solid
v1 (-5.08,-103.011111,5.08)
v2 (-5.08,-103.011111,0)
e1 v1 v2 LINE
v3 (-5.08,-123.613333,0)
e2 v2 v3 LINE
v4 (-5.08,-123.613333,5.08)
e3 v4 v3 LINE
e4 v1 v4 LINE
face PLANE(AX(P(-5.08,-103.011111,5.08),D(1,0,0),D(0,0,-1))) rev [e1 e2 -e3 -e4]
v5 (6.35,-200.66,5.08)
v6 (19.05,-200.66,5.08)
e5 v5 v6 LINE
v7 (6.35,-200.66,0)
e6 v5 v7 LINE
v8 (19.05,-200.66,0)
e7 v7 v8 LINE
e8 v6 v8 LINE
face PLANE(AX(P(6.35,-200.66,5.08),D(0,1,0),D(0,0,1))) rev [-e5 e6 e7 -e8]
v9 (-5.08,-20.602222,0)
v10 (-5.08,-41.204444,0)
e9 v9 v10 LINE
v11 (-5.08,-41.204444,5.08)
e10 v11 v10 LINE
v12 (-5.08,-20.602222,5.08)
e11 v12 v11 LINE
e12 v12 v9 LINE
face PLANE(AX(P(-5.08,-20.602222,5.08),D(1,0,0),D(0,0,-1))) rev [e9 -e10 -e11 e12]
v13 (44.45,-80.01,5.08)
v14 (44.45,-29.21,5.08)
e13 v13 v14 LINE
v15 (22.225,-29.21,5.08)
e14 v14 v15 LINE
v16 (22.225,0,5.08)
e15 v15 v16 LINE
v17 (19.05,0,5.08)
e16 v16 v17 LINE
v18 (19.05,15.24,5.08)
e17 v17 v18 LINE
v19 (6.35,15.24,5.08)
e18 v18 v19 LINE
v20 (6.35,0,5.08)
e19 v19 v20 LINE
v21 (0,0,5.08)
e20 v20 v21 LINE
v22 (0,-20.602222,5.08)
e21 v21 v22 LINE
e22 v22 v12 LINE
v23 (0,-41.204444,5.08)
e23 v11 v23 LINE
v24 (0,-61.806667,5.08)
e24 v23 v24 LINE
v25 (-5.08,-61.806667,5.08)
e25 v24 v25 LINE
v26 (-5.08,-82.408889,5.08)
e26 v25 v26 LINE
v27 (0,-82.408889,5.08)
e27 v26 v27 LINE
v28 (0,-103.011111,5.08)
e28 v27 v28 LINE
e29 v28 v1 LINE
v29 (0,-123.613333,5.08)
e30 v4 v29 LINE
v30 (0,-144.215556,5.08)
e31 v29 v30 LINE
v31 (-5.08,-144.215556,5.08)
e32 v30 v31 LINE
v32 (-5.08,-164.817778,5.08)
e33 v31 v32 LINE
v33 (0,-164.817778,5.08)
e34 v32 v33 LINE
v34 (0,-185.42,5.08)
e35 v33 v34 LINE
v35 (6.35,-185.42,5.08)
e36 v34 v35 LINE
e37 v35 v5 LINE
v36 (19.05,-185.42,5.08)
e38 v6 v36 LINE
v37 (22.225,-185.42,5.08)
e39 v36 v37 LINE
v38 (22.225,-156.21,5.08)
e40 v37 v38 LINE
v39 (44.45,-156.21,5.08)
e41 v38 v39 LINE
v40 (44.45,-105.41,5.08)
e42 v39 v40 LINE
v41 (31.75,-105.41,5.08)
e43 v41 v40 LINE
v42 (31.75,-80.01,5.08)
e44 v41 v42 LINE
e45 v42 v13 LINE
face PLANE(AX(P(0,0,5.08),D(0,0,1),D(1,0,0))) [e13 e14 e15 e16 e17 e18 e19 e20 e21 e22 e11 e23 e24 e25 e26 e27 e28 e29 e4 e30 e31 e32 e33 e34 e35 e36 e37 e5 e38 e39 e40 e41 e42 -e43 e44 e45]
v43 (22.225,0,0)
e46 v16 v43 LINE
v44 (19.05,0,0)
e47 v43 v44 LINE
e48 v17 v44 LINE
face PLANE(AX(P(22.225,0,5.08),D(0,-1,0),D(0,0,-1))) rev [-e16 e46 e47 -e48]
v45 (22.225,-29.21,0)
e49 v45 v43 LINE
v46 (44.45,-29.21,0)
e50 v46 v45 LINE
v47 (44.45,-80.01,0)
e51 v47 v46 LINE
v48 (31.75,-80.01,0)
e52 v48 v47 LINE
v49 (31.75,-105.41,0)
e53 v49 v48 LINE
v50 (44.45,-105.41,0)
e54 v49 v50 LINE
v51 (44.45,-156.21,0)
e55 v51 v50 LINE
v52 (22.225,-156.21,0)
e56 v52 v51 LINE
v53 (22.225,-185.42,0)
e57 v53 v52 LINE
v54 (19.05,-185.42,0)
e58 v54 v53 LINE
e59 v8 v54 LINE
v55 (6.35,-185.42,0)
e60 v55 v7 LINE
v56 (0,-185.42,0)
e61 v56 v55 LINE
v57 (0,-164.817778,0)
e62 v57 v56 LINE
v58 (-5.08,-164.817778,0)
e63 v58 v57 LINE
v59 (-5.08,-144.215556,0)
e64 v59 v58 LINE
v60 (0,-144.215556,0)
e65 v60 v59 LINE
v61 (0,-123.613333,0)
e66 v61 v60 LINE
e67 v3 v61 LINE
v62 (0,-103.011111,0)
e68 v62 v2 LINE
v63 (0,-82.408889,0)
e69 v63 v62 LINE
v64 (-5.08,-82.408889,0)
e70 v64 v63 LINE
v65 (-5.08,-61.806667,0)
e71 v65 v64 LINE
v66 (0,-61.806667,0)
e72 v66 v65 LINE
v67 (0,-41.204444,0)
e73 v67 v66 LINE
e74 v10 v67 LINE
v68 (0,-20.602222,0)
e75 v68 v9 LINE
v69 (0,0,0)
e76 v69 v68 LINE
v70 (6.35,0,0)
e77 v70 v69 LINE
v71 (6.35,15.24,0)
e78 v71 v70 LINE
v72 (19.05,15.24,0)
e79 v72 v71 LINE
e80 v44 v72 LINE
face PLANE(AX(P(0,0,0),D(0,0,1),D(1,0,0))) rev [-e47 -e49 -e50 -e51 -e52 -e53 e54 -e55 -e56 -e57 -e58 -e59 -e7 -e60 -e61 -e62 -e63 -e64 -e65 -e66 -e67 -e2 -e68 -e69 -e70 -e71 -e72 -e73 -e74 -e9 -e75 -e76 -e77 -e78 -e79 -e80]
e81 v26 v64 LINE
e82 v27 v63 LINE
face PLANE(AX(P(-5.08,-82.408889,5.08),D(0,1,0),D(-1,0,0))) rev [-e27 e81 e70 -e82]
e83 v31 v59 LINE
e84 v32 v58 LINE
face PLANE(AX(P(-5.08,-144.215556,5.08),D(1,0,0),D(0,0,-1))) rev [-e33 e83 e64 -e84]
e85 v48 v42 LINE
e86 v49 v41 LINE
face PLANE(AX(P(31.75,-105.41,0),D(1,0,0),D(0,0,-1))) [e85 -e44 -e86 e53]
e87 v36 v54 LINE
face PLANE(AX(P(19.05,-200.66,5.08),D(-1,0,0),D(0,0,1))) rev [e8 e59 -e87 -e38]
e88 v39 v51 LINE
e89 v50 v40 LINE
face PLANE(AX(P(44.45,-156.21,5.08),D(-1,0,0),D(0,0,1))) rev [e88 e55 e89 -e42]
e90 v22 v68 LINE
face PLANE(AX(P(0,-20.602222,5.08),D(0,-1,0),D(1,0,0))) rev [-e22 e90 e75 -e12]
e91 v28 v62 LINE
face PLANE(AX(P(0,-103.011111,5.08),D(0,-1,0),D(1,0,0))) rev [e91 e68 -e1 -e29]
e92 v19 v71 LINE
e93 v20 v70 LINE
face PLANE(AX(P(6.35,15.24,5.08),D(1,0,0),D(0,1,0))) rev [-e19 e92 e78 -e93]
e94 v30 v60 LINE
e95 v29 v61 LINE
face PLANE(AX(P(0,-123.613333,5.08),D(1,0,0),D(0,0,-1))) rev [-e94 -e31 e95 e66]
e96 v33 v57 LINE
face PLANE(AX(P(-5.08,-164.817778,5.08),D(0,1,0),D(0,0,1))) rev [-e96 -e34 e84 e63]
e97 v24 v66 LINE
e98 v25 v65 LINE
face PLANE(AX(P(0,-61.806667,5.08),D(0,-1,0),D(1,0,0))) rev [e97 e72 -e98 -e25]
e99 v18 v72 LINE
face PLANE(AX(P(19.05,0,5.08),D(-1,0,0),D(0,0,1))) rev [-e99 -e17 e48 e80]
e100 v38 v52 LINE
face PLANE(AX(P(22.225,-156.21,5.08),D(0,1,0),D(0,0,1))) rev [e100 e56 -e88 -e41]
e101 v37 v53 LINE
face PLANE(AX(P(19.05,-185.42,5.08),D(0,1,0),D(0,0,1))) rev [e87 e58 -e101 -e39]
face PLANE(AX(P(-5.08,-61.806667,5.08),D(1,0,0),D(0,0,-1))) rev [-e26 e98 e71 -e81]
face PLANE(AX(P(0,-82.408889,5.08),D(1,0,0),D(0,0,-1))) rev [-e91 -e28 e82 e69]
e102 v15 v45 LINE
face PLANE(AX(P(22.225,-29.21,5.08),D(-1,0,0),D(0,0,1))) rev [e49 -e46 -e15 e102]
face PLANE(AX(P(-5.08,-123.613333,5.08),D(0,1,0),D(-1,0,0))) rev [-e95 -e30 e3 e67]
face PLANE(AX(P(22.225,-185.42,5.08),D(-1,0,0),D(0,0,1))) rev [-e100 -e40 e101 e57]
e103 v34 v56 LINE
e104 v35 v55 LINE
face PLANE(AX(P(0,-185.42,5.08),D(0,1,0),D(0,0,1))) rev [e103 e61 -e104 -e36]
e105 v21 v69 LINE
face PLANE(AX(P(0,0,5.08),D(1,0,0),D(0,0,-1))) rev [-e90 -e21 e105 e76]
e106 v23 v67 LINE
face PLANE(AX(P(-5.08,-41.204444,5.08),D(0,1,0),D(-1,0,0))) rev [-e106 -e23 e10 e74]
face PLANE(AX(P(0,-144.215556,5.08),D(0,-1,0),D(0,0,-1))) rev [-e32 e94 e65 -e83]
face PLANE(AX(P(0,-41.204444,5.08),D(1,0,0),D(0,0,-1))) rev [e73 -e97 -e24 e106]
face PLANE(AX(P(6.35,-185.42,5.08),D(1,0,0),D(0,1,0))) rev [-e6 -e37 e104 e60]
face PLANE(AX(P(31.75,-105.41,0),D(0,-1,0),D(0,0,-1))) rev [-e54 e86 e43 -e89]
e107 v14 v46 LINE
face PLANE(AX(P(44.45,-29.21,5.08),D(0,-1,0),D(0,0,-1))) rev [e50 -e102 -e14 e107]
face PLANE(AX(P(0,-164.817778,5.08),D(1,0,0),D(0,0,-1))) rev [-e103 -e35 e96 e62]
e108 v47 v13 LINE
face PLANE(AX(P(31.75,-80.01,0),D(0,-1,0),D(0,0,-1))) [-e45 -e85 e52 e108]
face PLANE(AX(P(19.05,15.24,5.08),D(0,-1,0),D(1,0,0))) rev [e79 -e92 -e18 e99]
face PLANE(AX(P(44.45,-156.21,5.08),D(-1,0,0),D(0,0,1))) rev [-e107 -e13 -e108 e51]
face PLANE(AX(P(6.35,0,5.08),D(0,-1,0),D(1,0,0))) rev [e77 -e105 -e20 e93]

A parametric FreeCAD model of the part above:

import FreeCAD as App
import Part
import Sketcher
from FreeCAD import Vector
Q = App.Units.Quantity


def add_polygon(sketch, points):
    """Adds a closed chain of lines whose ends are joined by coincident constraints."""
    first, n = sketch.GeometryCount, len(points)
    for a, b in zip(points, points[1:] + points[:1]):
        sketch.addGeometry(Part.LineSegment(App.Vector(*a, 0), App.Vector(*b, 0)), False)
    for i in range(n):
        sketch.addConstraint(Sketcher.Constraint("Coincident", first + i, 2, first + (i + 1) % n, 1))

doc = App.newDocument("Part")
body = doc.addObject("PartDesign::Body", "Body")

sketch1 = body.newObject("Sketcher::SketchObject", "Sketch")
sketch1.AttachmentSupport = (doc.getObject("XY_Plane"), [""])
sketch1.MapMode = "FlatFace"
add_polygon(sketch1, [(0, 0), (0, -20.6), (-5.1, -20.6), (-5.1, -41.2), (0, -41.2), (0, -61.8), (-5.1, -61.8), (-5.1, -82.4), (0, -82.4), (0, -103), (-5.1, -103), (-5.1, -123.6), (0, -123.6), (0, -144.2), (-5.1, -144.2), (-5.1, -164.8), (0, -164.8), (0, -185.4), (6.3, -185.4), (6.3, -200.7), (19.1, -200.7), (19.1, -185.4), (22.2, -185.4), (22.2, -156.2), (44.5, -156.2), (44.5, -29.2), (22.2, -29.2), (22.2, 0), (19.1, 0), (19.1, 15.2), (6.3, 15.2), (6.3, 0)])
sketch1.addConstraint([
    Sketcher.Constraint("Vertical", 0),
    Sketcher.Constraint("Horizontal", 1),
    Sketcher.Constraint("Vertical", 2),
    Sketcher.Constraint("Horizontal", 3),
    Sketcher.Constraint("Vertical", 4),
    Sketcher.Constraint("Horizontal", 5),
    Sketcher.Constraint("Vertical", 6),
    Sketcher.Constraint("Horizontal", 7),
    Sketcher.Constraint("Vertical", 8),
    Sketcher.Constraint("Horizontal", 9),
    Sketcher.Constraint("Vertical", 10),
    Sketcher.Constraint("Horizontal", 11),
    Sketcher.Constraint("Vertical", 12),
    Sketcher.Constraint("Horizontal", 13),
    Sketcher.Constraint("Vertical", 14),
    Sketcher.Constraint("Horizontal", 15),
    Sketcher.Constraint("Vertical", 16),
    Sketcher.Constraint("Horizontal", 17),
    Sketcher.Constraint("Vertical", 18),
    Sketcher.Constraint("Horizontal", 19),
    Sketcher.Constraint("Vertical", 20),
    Sketcher.Constraint("Horizontal", 21),
    Sketcher.Constraint("Vertical", 22),
    Sketcher.Constraint("Horizontal", 23),
    Sketcher.Constraint("Vertical", 24),
    Sketcher.Constraint("Horizontal", 25),
    Sketcher.Constraint("Vertical", 26),
    Sketcher.Constraint("Horizontal", 27),
    Sketcher.Constraint("Vertical", 28),
    Sketcher.Constraint("Horizontal", 29),
    Sketcher.Constraint("Vertical", 30),
    Sketcher.Constraint("Horizontal", 31),
    Sketcher.Constraint("Coincident", 31, 2, -1, 1),
    Sketcher.Constraint("PointOnObject", 3, 2, -2),
    Sketcher.Constraint("PointOnObject", 7, 2, -2),
    Sketcher.Constraint("PointOnObject", 11, 2, -2),
    Sketcher.Constraint("PointOnObject", 15, 2, -2),
    Sketcher.Constraint("PointOnObject", 26, 2, -1),
    Sketcher.Constraint("Horizontal", 17, 2, 20, 2),
    Sketcher.Constraint("Vertical", 2, 2, 5, 2),
    Sketcher.Constraint("Vertical", 6, 2, 9, 2),
    Sketcher.Constraint("Vertical", 10, 2, 13, 2),
    Sketcher.Constraint("Vertical", 22, 2, 25, 2),
    Sketcher.Constraint("Vertical", 20, 2, 27, 2),
    Sketcher.Constraint("Vertical", 18, 2, 29, 2),
    Sketcher.Constraint("Equal", 0, 2),
    Sketcher.Constraint("Equal", 2, 4),
    Sketcher.Constraint("Equal", 4, 6),
    Sketcher.Constraint("Equal", 6, 8),
    Sketcher.Constraint("Equal", 8, 10),
    Sketcher.Constraint("Equal", 10, 12),
    Sketcher.Constraint("Equal", 12, 14),
    Sketcher.Constraint("Equal", 14, 16),
    Sketcher.Constraint("Equal", 22, 26),
    Sketcher.Constraint("Equal", 20, 28),
    Sketcher.Constraint("DistanceY", 24, 1, 24, 2, Q("5 in")),
    Sketcher.Constraint("DistanceX", 1, 2, 1, 1, Q("0.2 in")),
    Sketcher.Constraint("DistanceX", 19, 1, 19, 2, Q("0.5 in")),
    Sketcher.Constraint("DistanceY", 18, 2, 18, 1, Q("0.6 in")),
    Sketcher.Constraint("DistanceX", 20, 2, 23, 2, Q("1 in")),
    Sketcher.Constraint("DistanceX", 17, 1, 17, 2, Q("0.25 in")),
    Sketcher.Constraint("DistanceY", 22, 1, 22, 2, Q("1.15 in")),
    Sketcher.Constraint("DistanceX", 21, 1, 21, 2, Q("0.125 in")),
])
pad1 = body.newObject("PartDesign::Pad", "Pad")
pad1.Profile = sketch1
pad1.Length = Q("0.2 in")

sketch2 = body.newObject("Sketcher::SketchObject", "Sketch001")
sketch2.AttachmentSupport = (doc.getObject("XY_Plane"), [""])
sketch2.MapMode = "FlatFace"
sketch2.AttachmentOffset = App.Placement(Vector(0, 0, 0.2 * 25.4), App.Rotation())
add_polygon(sketch2, [(32, -80), (32, -105), (57, -105), (57, -80)])
sketch2.addConstraint([
    Sketcher.Constraint("Vertical", 0),
    Sketcher.Constraint("Horizontal", 1),
    Sketcher.Constraint("Vertical", 2),
    Sketcher.Constraint("Horizontal", 3),
    Sketcher.Constraint("Equal", 3, 0),
    Sketcher.Constraint("DistanceX", 1, 1, 1, 2, Q("1 in")),
    Sketcher.Constraint("DistanceX", -1, 1, 0, 2, Q("1.25 in")),
    Sketcher.Constraint("DistanceY", 0, 2, -1, 1, Q("4.15 in")),
])
pocket1 = body.newObject("PartDesign::Pocket", "Pocket")
pocket1.Profile = sketch2
pocket1.Type = "ThroughAll"

doc.recompute()
